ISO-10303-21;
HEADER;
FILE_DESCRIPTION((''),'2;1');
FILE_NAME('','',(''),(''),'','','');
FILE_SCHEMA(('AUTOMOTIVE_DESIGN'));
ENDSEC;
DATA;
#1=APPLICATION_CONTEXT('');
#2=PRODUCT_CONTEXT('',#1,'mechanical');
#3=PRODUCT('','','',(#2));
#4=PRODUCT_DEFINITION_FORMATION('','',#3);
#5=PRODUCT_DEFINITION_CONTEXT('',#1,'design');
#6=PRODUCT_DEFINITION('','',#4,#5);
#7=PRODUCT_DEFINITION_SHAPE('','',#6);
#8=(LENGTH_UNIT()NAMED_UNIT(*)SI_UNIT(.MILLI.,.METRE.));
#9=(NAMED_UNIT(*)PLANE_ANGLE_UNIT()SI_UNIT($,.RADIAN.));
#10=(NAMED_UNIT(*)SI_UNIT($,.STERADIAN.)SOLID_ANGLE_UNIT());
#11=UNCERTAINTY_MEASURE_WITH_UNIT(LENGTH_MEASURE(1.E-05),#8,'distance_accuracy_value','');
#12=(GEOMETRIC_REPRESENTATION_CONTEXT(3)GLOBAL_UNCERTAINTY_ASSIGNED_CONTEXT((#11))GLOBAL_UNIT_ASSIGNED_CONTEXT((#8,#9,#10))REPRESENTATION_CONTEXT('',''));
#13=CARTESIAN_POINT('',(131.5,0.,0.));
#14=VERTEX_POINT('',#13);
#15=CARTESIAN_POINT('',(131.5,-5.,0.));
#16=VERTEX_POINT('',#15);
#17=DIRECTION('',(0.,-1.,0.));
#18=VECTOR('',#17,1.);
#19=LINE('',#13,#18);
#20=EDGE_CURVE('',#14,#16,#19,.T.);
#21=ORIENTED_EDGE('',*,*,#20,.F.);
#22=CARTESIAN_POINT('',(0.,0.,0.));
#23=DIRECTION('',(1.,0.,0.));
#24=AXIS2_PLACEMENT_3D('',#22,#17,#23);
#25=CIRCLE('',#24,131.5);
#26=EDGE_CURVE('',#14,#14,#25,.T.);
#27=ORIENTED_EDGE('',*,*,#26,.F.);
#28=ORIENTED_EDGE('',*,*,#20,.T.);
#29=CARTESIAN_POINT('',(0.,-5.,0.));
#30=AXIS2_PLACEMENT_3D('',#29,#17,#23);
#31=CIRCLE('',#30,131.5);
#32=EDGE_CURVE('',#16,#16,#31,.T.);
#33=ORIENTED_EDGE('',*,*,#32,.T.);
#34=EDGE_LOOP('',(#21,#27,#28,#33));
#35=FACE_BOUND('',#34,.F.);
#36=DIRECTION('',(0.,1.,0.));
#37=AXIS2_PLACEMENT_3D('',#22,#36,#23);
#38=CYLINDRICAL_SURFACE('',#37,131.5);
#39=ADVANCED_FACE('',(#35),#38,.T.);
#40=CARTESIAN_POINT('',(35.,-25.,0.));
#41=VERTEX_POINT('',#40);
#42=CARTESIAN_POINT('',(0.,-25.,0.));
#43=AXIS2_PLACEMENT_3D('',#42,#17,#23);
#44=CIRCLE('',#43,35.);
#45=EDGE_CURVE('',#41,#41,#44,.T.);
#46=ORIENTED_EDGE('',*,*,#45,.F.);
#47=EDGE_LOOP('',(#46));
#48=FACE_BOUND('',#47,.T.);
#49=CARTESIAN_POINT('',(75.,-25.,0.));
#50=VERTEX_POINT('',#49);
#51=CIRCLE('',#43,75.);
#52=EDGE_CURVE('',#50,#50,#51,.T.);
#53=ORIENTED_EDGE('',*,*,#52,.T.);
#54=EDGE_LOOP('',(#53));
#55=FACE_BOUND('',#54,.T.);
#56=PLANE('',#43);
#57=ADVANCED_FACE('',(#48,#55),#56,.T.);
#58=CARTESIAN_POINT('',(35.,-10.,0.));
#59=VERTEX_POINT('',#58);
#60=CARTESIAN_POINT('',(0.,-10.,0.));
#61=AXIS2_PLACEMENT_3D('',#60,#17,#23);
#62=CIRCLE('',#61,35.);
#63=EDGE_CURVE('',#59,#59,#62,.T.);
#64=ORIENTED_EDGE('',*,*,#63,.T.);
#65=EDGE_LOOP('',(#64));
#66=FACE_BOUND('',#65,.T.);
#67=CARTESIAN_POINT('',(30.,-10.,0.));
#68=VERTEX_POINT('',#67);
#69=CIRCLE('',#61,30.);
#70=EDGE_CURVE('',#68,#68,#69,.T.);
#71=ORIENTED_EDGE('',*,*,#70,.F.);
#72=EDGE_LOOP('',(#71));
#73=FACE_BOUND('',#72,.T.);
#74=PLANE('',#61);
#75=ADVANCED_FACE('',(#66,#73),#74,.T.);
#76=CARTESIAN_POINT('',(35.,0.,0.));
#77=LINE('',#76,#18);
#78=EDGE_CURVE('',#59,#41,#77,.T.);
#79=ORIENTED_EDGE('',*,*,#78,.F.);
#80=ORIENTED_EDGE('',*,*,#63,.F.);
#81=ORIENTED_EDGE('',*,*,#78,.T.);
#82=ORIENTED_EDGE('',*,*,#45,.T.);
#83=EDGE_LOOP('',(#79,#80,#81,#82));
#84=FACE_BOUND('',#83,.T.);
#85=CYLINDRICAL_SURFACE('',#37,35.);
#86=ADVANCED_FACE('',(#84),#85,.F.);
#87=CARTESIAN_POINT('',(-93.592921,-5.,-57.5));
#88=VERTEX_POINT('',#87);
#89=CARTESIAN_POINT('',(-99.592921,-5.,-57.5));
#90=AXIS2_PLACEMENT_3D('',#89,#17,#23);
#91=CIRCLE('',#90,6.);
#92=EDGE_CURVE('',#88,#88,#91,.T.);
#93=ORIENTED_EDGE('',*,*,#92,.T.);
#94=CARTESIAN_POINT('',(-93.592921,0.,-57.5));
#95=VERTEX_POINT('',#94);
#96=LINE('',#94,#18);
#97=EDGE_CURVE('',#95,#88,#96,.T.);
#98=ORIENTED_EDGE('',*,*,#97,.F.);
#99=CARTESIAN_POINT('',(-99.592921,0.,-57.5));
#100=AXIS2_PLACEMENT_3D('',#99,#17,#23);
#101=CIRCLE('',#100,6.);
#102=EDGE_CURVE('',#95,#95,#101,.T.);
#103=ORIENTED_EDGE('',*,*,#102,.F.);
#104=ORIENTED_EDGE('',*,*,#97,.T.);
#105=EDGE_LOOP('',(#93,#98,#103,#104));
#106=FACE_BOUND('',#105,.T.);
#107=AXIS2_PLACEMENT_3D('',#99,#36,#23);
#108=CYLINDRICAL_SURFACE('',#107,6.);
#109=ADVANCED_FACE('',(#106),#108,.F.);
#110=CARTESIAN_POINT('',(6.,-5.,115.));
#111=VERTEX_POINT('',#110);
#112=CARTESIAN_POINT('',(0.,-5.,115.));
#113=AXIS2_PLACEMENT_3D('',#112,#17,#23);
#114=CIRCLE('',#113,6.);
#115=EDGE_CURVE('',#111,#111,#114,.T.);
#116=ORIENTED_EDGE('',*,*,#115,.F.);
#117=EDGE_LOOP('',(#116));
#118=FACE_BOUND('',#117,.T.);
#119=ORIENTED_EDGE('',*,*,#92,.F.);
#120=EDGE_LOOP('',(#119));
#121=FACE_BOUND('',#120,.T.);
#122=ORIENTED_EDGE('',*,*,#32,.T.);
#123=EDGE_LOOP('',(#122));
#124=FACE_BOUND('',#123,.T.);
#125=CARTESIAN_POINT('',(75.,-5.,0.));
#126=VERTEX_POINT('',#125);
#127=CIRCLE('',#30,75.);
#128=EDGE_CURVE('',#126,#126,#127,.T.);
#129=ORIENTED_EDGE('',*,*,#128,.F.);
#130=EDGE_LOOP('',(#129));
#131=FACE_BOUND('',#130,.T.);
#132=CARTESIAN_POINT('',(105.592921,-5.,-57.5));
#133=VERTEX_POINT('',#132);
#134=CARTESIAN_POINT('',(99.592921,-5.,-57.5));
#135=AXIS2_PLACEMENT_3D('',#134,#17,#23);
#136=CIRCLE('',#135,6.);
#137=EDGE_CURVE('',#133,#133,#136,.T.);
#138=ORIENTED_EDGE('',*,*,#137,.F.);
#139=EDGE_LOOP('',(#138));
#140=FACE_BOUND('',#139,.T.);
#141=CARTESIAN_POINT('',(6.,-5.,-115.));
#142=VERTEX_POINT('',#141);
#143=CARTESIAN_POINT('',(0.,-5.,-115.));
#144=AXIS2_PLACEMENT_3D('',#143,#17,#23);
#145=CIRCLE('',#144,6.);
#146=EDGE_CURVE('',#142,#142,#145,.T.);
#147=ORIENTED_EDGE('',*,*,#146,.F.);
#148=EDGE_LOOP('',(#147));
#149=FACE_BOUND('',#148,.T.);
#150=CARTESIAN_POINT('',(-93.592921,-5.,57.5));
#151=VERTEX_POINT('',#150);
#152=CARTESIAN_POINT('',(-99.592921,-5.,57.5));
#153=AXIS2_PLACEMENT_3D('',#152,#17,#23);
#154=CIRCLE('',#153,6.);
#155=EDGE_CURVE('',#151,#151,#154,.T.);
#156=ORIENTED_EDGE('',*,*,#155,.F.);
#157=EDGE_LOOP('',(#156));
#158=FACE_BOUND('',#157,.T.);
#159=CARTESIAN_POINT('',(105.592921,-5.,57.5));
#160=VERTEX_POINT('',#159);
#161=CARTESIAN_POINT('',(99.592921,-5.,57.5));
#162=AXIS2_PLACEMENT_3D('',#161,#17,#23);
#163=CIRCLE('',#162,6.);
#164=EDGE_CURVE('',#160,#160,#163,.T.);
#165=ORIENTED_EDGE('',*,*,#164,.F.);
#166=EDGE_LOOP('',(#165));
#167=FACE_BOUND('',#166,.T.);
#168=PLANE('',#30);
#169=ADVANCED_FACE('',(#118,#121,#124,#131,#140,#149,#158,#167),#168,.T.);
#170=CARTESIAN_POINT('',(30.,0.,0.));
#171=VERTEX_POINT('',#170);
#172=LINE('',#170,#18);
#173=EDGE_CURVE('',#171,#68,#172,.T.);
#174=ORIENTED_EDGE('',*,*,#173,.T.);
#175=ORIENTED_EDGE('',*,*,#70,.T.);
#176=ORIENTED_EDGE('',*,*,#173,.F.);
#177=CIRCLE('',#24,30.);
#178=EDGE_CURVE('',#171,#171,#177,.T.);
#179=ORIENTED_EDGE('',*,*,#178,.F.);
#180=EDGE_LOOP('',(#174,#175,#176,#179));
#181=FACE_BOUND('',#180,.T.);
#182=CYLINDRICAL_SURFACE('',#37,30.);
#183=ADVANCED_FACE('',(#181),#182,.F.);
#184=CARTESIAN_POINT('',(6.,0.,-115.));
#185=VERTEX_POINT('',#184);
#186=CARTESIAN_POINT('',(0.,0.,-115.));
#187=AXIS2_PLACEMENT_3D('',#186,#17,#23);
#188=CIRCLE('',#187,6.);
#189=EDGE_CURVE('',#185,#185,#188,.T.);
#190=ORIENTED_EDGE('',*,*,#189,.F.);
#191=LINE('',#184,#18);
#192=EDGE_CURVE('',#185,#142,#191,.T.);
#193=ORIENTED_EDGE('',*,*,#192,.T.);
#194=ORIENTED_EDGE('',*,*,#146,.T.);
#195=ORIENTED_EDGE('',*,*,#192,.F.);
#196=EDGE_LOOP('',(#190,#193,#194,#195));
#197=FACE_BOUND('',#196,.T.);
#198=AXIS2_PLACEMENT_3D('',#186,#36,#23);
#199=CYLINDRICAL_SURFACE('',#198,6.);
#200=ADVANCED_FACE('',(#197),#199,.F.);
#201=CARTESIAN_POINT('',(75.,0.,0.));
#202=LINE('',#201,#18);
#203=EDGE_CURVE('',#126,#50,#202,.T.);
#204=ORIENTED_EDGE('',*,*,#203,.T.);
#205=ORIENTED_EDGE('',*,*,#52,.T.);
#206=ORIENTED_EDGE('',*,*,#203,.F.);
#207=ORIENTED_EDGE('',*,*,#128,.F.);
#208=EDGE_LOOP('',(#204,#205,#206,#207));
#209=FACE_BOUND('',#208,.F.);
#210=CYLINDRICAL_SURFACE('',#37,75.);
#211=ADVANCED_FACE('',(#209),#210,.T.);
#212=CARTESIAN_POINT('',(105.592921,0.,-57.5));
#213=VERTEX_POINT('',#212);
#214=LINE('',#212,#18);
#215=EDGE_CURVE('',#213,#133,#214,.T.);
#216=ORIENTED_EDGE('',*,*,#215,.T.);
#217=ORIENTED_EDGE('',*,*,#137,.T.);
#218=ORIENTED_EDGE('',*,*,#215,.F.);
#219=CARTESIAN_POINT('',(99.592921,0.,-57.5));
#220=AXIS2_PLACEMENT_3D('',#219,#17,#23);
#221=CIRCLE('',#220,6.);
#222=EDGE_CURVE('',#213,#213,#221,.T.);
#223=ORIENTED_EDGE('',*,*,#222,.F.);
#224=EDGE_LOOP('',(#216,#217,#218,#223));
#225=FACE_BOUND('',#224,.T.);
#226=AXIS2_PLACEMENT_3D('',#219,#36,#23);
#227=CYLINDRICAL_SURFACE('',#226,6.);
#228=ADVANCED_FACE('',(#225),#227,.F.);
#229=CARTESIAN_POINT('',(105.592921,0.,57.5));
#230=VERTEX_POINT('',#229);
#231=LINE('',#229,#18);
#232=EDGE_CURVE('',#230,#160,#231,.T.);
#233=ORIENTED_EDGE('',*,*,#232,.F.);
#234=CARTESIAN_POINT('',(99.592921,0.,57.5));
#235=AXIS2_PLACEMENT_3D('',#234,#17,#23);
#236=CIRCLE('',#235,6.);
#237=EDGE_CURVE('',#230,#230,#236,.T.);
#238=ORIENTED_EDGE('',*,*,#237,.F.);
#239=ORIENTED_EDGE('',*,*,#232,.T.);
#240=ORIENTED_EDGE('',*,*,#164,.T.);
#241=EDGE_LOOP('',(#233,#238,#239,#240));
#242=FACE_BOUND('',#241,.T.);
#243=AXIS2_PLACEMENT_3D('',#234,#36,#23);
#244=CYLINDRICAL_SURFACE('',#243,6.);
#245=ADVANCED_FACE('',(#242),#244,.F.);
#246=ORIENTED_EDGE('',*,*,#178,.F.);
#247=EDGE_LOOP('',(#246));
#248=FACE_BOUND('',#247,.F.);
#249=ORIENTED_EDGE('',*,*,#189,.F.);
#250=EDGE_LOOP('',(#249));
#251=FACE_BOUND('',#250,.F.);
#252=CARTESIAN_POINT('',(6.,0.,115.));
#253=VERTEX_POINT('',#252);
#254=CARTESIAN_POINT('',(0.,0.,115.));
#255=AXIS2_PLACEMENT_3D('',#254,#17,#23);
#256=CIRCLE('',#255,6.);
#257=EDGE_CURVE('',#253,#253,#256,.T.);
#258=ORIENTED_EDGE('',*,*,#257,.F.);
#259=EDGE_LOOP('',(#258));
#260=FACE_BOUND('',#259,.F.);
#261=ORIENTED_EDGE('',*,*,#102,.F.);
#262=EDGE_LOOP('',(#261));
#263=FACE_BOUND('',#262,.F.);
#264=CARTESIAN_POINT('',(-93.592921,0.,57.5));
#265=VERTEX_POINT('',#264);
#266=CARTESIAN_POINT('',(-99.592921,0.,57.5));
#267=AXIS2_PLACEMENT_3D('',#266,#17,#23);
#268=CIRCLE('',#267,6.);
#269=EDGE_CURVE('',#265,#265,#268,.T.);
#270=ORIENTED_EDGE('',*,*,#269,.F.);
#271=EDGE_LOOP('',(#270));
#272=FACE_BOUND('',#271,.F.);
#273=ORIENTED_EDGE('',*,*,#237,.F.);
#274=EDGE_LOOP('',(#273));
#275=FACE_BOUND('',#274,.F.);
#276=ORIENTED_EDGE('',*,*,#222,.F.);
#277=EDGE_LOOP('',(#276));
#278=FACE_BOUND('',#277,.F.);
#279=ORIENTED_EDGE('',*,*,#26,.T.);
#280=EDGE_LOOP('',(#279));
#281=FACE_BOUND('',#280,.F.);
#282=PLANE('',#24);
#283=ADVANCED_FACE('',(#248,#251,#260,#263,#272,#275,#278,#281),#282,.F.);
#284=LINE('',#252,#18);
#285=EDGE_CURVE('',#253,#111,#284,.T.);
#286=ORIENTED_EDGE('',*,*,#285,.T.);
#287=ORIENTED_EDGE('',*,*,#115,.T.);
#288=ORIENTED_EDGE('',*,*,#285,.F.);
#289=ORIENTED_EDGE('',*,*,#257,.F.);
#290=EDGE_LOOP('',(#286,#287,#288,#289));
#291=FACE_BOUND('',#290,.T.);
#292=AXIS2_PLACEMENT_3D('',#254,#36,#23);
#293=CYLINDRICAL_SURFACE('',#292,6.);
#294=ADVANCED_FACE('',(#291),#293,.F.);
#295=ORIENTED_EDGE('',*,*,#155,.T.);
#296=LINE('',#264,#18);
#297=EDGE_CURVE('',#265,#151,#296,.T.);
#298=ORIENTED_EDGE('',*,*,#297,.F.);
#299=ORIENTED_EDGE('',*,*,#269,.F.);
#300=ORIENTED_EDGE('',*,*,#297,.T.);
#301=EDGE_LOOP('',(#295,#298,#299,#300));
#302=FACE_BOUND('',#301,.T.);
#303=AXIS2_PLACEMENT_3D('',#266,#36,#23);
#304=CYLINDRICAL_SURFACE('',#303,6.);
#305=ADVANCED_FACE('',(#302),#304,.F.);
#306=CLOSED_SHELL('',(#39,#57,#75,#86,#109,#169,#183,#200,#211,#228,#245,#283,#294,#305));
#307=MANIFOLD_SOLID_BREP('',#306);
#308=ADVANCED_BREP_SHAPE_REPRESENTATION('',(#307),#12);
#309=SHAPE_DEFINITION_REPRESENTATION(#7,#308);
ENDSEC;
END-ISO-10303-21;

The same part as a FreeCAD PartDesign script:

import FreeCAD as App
import Part
import Sketcher

V = App.Vector
Q = App.Units.Quantity

doc = App.newDocument("Part")
body = doc.addObject("PartDesign::Body", "Body")

# Sketch on XZ plane
sketch1 = body.newObject("Sketcher::SketchObject", "Sketch")
sketch1.AttachmentSupport = (doc.getObject("XZ_Plane"), [""])
sketch1.MapMode = "FlatFace"
sketch1.addGeometry([
    Part.Circle(V(0, 0, 0), V(0, 0, 1), 131.5),  # 0
    Part.Circle(V(-99.592921, -57.5, 0), V(0, 0, 1), 6),  # 1
    Part.Circle(V(0, -115, 0), V(0, 0, 1), 6),  # 2
    Part.Circle(V(99.592921, -57.5, 0), V(0, 0, 1), 6),  # 3
    Part.Circle(V(-99.592921, 57.5, 0), V(0, 0, 1), 6),  # 4
    Part.Circle(V(0, 0, 0), V(0, 0, 1), 75),  # 5
    Part.Circle(V(99.592921, 57.5, 0), V(0, 0, 1), 6),  # 6
    Part.Circle(V(0, 115, 0), V(0, 0, 1), 6),  # 7
], False)
sketch1.addConstraint([
    Sketcher.Constraint("Coincident", 0, 3, -1, 1),
    Sketcher.Constraint("Coincident", 5, 3, -1, 1),
    Sketcher.Constraint("Equal", 1, 2),
    Sketcher.Constraint("Equal", 2, 3),
    Sketcher.Constraint("Equal", 3, 4),
    Sketcher.Constraint("Equal", 4, 6),
    Sketcher.Constraint("Equal", 6, 7),
    Sketcher.Constraint("Symmetric", 3, 3, 4, 3, -1, 1),
    Sketcher.Constraint("Symmetric", 1, 3, 6, 3, -1, 1),
    Sketcher.Constraint("Symmetric", 2, 3, 7, 3, -1, 1),
    Sketcher.Constraint("Symmetric", 1, 3, 3, 3, -2),
    Sketcher.Constraint("PointOnObject", 2, 3, -2),
    Sketcher.Constraint("Diameter", 0, Q("263 mm")),
    Sketcher.Constraint("Diameter", 1, Q("12 mm")),
    Sketcher.Constraint("Diameter", 5, Q("150 mm")),
    Sketcher.Constraint("DistanceY", 2, 3, -1, 1, Q("115 mm")),
    Sketcher.Constraint("DistanceY", 1, 3, 4, 3, Q("115 mm")),
    Sketcher.Constraint("DistanceX", 1, 3, -1, 1, Q("99.592921 mm")),
])
pad1 = body.newObject("PartDesign::Pad", "Pad")
pad1.Profile = sketch1
pad1.Length = 5

# Sketch on XZ plane
sketch2 = body.newObject("Sketcher::SketchObject", "Sketch001")
sketch2.AttachmentSupport = (doc.getObject("XZ_Plane"), [""])
sketch2.MapMode = "FlatFace"
sketch2.addGeometry([
    Part.Circle(V(0, 0, 0), V(0, 0, 1), 75),
    Part.Circle(V(0, 0, 0), V(0, 0, 1), 35),
], False)
sketch2.addConstraint([
    Sketcher.Constraint("Coincident", 0, 3, -1, 1),
    Sketcher.Constraint("Coincident", 1, 3, -1, 1),
    Sketcher.Constraint("Diameter", 0, Q("150 mm")),
    Sketcher.Constraint("Diameter", 1, Q("70 mm")),
])
pad2 = body.newObject("PartDesign::Pad", "Pad001")
pad2.Profile = sketch2
pad2.Length = 25

# Sketch on XZ plane
sketch3 = body.newObject("Sketcher::SketchObject", "Sketch002")
sketch3.AttachmentSupport = (doc.getObject("XZ_Plane"), [""])
sketch3.MapMode = "FlatFace"
sketch3.addGeometry([
    Part.Circle(V(0, 0, 0), V(0, 0, 1), 35),
    Part.Circle(V(0, 0, 0), V(0, 0, 1), 30),
], False)
sketch3.addConstraint([
    Sketcher.Constraint("Coincident", 0, 3, -1, 1),
    Sketcher.Constraint("Coincident", 1, 3, -1, 1),
    Sketcher.Constraint("Diameter", 0, Q("70 mm")),
    Sketcher.Constraint("Diameter", 1, Q("60 mm")),
])
pad3 = body.newObject("PartDesign::Pad", "Pad002")
pad3.Profile = sketch3
pad3.Length = 10

doc.recompute()
